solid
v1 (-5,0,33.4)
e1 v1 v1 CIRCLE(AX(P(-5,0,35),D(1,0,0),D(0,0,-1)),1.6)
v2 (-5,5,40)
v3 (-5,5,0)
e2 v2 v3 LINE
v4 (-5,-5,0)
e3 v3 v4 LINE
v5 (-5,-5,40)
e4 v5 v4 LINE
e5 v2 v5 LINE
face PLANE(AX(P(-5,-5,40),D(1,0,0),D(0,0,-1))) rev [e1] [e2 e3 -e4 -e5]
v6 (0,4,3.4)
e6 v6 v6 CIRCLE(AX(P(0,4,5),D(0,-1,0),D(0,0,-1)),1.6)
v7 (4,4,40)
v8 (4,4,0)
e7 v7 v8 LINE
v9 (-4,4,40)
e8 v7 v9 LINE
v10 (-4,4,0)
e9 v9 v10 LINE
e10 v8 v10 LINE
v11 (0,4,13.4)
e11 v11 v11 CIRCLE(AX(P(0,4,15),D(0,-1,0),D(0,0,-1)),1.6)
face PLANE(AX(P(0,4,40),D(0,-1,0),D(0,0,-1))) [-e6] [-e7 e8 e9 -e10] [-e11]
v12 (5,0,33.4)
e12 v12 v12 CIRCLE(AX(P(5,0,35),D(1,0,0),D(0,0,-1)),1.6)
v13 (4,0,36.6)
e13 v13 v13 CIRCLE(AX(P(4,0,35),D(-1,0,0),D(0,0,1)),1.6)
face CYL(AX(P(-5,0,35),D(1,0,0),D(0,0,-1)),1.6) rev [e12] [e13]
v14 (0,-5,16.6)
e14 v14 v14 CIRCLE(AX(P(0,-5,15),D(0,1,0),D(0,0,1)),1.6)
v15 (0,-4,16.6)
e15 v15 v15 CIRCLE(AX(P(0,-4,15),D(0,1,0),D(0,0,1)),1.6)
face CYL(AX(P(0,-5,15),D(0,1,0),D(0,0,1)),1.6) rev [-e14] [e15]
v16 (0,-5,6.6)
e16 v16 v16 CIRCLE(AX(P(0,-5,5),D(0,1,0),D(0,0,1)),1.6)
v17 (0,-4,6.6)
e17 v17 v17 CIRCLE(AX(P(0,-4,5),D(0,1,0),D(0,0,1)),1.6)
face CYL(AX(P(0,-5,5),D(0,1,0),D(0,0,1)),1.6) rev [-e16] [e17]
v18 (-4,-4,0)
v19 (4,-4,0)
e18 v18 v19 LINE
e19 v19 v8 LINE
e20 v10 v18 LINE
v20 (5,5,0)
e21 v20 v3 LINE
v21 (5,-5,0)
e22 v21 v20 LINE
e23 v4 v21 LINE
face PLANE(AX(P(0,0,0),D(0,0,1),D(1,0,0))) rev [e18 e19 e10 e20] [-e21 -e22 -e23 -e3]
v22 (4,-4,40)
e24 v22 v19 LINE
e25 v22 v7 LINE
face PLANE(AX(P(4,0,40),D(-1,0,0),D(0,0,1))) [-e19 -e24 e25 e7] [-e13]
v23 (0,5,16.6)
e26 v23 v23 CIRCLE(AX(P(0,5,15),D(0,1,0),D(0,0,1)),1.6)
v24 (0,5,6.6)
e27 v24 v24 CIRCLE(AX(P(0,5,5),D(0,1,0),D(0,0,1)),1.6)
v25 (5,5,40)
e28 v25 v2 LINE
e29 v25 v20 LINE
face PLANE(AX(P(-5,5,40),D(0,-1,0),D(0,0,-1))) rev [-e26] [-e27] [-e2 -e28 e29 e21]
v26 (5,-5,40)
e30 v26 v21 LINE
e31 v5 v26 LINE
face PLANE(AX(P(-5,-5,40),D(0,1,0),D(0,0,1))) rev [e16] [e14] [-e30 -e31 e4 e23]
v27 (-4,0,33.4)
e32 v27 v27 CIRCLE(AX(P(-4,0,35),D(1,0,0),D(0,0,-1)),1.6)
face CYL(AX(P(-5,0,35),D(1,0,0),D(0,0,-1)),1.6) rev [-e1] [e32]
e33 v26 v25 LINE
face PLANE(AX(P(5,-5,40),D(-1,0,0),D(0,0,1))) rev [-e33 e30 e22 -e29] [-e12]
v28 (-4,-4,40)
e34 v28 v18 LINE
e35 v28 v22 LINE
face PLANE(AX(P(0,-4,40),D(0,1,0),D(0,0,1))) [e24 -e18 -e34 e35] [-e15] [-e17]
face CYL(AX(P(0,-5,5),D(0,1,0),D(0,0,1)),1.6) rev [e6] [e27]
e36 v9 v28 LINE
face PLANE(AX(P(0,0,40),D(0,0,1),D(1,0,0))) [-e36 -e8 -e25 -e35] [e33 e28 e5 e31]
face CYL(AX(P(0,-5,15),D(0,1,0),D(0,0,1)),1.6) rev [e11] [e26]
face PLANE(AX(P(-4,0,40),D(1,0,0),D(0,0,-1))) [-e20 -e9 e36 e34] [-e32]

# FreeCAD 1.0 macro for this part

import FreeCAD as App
import Part
import Sketcher
Q = App.Units.Quantity

doc = App.newDocument("Part")
body = doc.addObject("PartDesign::Body", "Body")

# Sketch on XY plane
sketch1 = body.newObject("Sketcher::SketchObject", "Sketch")
sketch1.AttachmentSupport = (doc.getObject("XY_Plane"), [""])
sketch1.MapMode = "FlatFace"
sketch1.addGeometry(Part.LineSegment(App.Vector(-5, 5, 0), App.Vector(-5, -5, 0)), False)
sketch1.addGeometry(Part.LineSegment(App.Vector(-5, -5, 0), App.Vector(5, -5, 0)), False)
sketch1.addGeometry(Part.LineSegment(App.Vector(5, -5, 0), App.Vector(5, 5, 0)), False)
sketch1.addGeometry(Part.LineSegment(App.Vector(5, 5, 0), App.Vector(-5, 5, 0)), False)
sketch1.addGeometry(Part.LineSegment(App.Vector(4, -4, 0), App.Vector(-4, -4, 0)), False)
sketch1.addGeometry(Part.LineSegment(App.Vector(-4, -4, 0), App.Vector(-4, 4, 0)), False)
sketch1.addGeometry(Part.LineSegment(App.Vector(-4, 4, 0), App.Vector(4, 4, 0)), False)
sketch1.addGeometry(Part.LineSegment(App.Vector(4, 4, 0), App.Vector(4, -4, 0)), False)
sketch1.addConstraint(Sketcher.Constraint("Coincident", 0, 2, 1, 1))
sketch1.addConstraint(Sketcher.Constraint("Coincident", 1, 2, 2, 1))
sketch1.addConstraint(Sketcher.Constraint("Coincident", 2, 2, 3, 1))
sketch1.addConstraint(Sketcher.Constraint("Coincident", 3, 2, 0, 1))
sketch1.addConstraint(Sketcher.Constraint("Coincident", 4, 2, 5, 1))
sketch1.addConstraint(Sketcher.Constraint("Coincident", 5, 2, 6, 1))
sketch1.addConstraint(Sketcher.Constraint("Coincident", 6, 2, 7, 1))
sketch1.addConstraint(Sketcher.Constraint("Coincident", 7, 2, 4, 1))
sketch1.addConstraint(Sketcher.Constraint("Vertical", 0))
sketch1.addConstraint(Sketcher.Constraint("Horizontal", 1))
sketch1.addConstraint(Sketcher.Constraint("Vertical", 2))
sketch1.addConstraint(Sketcher.Constraint("Horizontal", 3))
sketch1.addConstraint(Sketcher.Constraint("Horizontal", 4))
sketch1.addConstraint(Sketcher.Constraint("Vertical", 5))
sketch1.addConstraint(Sketcher.Constraint("Horizontal", 6))
sketch1.addConstraint(Sketcher.Constraint("Vertical", 7))
sketch1.addConstraint(Sketcher.Constraint("Symmetric", 0, 2, 2, 2, -1, 1))
sketch1.addConstraint(Sketcher.Constraint("Symmetric", 4, 2, 6, 2, -1, 1))
sketch1.addConstraint(Sketcher.Constraint("Equal", 3, 0))
sketch1.addConstraint(Sketcher.Constraint("Equal", 6, 5))
sketch1.addConstraint(Sketcher.Constraint("DistanceX", 1, 1, 1, 2, Q("10 mm")))
sketch1.addConstraint(Sketcher.Constraint("DistanceX", 4, 2, 4, 1, Q("8 mm")))
pad1 = body.newObject("PartDesign::Pad", "Pad")
pad1.Profile = sketch1
pad1.Length = 40

# Sketch on XZ plane
sketch2 = body.newObject("Sketcher::SketchObject", "Sketch001")
sketch2.AttachmentSupport = (doc.getObject("XZ_Plane"), [""])
sketch2.MapMode = "FlatFace"
sketch2.AttachmentOffset = App.Placement(App.Vector(0, 0, -5), App.Rotation())
sketch2.addGeometry(Part.Circle(App.Vector(0, 5, 0), App.Vector(0, 0, 1), 1.6), False)
sketch2.addGeometry(Part.Circle(App.Vector(0, 15, 0), App.Vector(0, 0, 1), 1.6), False)
sketch2.addConstraint(Sketcher.Constraint("Equal", 0, 1))
sketch2.addConstraint(Sketcher.Constraint("PointOnObject", 0, 3, -2))
sketch2.addConstraint(Sketcher.Constraint("PointOnObject", 1, 3, -2))
sketch2.addConstraint(Sketcher.Constraint("Diameter", 0, Q("3.2 mm")))
sketch2.addConstraint(Sketcher.Constraint("DistanceY", -1, 1, 0, 3, Q("5 mm")))
sketch2.addConstraint(Sketcher.Constraint("DistanceY", -1, 1, 1, 3, Q("15 mm")))
pocket1 = body.newObject("PartDesign::Pocket", "Pocket")
pocket1.Profile = sketch2
pocket1.Type = "ThroughAll"
pocket1.Reversed = True

# Sketch on YZ plane
sketch3 = body.newObject("Sketcher::SketchObject", "Sketch002")
sketch3.AttachmentSupport = (doc.getObject("YZ_Plane"), [""])
sketch3.MapMode = "FlatFace"
sketch3.AttachmentOffset = App.Placement(App.Vector(0, 0, 5), App.Rotation())
sketch3.addGeometry(Part.Circle(App.Vector(0, 35, 0), App.Vector(0, 0, 1), 1.6), False)
sketch3.addConstraint(Sketcher.Constraint("PointOnObject", 0, 3, -2))
sketch3.addConstraint(Sketcher.Constraint("Diameter", 0, Q("3.2 mm")))
sketch3.addConstraint(Sketcher.Constraint("DistanceY", -1, 1, 0, 3, Q("35 mm")))
pocket2 = body.newObject("PartDesign::Pocket", "Pocket001")
pocket2.Profile = sketch3
pocket2.Type = "ThroughAll"

doc.recompute()
